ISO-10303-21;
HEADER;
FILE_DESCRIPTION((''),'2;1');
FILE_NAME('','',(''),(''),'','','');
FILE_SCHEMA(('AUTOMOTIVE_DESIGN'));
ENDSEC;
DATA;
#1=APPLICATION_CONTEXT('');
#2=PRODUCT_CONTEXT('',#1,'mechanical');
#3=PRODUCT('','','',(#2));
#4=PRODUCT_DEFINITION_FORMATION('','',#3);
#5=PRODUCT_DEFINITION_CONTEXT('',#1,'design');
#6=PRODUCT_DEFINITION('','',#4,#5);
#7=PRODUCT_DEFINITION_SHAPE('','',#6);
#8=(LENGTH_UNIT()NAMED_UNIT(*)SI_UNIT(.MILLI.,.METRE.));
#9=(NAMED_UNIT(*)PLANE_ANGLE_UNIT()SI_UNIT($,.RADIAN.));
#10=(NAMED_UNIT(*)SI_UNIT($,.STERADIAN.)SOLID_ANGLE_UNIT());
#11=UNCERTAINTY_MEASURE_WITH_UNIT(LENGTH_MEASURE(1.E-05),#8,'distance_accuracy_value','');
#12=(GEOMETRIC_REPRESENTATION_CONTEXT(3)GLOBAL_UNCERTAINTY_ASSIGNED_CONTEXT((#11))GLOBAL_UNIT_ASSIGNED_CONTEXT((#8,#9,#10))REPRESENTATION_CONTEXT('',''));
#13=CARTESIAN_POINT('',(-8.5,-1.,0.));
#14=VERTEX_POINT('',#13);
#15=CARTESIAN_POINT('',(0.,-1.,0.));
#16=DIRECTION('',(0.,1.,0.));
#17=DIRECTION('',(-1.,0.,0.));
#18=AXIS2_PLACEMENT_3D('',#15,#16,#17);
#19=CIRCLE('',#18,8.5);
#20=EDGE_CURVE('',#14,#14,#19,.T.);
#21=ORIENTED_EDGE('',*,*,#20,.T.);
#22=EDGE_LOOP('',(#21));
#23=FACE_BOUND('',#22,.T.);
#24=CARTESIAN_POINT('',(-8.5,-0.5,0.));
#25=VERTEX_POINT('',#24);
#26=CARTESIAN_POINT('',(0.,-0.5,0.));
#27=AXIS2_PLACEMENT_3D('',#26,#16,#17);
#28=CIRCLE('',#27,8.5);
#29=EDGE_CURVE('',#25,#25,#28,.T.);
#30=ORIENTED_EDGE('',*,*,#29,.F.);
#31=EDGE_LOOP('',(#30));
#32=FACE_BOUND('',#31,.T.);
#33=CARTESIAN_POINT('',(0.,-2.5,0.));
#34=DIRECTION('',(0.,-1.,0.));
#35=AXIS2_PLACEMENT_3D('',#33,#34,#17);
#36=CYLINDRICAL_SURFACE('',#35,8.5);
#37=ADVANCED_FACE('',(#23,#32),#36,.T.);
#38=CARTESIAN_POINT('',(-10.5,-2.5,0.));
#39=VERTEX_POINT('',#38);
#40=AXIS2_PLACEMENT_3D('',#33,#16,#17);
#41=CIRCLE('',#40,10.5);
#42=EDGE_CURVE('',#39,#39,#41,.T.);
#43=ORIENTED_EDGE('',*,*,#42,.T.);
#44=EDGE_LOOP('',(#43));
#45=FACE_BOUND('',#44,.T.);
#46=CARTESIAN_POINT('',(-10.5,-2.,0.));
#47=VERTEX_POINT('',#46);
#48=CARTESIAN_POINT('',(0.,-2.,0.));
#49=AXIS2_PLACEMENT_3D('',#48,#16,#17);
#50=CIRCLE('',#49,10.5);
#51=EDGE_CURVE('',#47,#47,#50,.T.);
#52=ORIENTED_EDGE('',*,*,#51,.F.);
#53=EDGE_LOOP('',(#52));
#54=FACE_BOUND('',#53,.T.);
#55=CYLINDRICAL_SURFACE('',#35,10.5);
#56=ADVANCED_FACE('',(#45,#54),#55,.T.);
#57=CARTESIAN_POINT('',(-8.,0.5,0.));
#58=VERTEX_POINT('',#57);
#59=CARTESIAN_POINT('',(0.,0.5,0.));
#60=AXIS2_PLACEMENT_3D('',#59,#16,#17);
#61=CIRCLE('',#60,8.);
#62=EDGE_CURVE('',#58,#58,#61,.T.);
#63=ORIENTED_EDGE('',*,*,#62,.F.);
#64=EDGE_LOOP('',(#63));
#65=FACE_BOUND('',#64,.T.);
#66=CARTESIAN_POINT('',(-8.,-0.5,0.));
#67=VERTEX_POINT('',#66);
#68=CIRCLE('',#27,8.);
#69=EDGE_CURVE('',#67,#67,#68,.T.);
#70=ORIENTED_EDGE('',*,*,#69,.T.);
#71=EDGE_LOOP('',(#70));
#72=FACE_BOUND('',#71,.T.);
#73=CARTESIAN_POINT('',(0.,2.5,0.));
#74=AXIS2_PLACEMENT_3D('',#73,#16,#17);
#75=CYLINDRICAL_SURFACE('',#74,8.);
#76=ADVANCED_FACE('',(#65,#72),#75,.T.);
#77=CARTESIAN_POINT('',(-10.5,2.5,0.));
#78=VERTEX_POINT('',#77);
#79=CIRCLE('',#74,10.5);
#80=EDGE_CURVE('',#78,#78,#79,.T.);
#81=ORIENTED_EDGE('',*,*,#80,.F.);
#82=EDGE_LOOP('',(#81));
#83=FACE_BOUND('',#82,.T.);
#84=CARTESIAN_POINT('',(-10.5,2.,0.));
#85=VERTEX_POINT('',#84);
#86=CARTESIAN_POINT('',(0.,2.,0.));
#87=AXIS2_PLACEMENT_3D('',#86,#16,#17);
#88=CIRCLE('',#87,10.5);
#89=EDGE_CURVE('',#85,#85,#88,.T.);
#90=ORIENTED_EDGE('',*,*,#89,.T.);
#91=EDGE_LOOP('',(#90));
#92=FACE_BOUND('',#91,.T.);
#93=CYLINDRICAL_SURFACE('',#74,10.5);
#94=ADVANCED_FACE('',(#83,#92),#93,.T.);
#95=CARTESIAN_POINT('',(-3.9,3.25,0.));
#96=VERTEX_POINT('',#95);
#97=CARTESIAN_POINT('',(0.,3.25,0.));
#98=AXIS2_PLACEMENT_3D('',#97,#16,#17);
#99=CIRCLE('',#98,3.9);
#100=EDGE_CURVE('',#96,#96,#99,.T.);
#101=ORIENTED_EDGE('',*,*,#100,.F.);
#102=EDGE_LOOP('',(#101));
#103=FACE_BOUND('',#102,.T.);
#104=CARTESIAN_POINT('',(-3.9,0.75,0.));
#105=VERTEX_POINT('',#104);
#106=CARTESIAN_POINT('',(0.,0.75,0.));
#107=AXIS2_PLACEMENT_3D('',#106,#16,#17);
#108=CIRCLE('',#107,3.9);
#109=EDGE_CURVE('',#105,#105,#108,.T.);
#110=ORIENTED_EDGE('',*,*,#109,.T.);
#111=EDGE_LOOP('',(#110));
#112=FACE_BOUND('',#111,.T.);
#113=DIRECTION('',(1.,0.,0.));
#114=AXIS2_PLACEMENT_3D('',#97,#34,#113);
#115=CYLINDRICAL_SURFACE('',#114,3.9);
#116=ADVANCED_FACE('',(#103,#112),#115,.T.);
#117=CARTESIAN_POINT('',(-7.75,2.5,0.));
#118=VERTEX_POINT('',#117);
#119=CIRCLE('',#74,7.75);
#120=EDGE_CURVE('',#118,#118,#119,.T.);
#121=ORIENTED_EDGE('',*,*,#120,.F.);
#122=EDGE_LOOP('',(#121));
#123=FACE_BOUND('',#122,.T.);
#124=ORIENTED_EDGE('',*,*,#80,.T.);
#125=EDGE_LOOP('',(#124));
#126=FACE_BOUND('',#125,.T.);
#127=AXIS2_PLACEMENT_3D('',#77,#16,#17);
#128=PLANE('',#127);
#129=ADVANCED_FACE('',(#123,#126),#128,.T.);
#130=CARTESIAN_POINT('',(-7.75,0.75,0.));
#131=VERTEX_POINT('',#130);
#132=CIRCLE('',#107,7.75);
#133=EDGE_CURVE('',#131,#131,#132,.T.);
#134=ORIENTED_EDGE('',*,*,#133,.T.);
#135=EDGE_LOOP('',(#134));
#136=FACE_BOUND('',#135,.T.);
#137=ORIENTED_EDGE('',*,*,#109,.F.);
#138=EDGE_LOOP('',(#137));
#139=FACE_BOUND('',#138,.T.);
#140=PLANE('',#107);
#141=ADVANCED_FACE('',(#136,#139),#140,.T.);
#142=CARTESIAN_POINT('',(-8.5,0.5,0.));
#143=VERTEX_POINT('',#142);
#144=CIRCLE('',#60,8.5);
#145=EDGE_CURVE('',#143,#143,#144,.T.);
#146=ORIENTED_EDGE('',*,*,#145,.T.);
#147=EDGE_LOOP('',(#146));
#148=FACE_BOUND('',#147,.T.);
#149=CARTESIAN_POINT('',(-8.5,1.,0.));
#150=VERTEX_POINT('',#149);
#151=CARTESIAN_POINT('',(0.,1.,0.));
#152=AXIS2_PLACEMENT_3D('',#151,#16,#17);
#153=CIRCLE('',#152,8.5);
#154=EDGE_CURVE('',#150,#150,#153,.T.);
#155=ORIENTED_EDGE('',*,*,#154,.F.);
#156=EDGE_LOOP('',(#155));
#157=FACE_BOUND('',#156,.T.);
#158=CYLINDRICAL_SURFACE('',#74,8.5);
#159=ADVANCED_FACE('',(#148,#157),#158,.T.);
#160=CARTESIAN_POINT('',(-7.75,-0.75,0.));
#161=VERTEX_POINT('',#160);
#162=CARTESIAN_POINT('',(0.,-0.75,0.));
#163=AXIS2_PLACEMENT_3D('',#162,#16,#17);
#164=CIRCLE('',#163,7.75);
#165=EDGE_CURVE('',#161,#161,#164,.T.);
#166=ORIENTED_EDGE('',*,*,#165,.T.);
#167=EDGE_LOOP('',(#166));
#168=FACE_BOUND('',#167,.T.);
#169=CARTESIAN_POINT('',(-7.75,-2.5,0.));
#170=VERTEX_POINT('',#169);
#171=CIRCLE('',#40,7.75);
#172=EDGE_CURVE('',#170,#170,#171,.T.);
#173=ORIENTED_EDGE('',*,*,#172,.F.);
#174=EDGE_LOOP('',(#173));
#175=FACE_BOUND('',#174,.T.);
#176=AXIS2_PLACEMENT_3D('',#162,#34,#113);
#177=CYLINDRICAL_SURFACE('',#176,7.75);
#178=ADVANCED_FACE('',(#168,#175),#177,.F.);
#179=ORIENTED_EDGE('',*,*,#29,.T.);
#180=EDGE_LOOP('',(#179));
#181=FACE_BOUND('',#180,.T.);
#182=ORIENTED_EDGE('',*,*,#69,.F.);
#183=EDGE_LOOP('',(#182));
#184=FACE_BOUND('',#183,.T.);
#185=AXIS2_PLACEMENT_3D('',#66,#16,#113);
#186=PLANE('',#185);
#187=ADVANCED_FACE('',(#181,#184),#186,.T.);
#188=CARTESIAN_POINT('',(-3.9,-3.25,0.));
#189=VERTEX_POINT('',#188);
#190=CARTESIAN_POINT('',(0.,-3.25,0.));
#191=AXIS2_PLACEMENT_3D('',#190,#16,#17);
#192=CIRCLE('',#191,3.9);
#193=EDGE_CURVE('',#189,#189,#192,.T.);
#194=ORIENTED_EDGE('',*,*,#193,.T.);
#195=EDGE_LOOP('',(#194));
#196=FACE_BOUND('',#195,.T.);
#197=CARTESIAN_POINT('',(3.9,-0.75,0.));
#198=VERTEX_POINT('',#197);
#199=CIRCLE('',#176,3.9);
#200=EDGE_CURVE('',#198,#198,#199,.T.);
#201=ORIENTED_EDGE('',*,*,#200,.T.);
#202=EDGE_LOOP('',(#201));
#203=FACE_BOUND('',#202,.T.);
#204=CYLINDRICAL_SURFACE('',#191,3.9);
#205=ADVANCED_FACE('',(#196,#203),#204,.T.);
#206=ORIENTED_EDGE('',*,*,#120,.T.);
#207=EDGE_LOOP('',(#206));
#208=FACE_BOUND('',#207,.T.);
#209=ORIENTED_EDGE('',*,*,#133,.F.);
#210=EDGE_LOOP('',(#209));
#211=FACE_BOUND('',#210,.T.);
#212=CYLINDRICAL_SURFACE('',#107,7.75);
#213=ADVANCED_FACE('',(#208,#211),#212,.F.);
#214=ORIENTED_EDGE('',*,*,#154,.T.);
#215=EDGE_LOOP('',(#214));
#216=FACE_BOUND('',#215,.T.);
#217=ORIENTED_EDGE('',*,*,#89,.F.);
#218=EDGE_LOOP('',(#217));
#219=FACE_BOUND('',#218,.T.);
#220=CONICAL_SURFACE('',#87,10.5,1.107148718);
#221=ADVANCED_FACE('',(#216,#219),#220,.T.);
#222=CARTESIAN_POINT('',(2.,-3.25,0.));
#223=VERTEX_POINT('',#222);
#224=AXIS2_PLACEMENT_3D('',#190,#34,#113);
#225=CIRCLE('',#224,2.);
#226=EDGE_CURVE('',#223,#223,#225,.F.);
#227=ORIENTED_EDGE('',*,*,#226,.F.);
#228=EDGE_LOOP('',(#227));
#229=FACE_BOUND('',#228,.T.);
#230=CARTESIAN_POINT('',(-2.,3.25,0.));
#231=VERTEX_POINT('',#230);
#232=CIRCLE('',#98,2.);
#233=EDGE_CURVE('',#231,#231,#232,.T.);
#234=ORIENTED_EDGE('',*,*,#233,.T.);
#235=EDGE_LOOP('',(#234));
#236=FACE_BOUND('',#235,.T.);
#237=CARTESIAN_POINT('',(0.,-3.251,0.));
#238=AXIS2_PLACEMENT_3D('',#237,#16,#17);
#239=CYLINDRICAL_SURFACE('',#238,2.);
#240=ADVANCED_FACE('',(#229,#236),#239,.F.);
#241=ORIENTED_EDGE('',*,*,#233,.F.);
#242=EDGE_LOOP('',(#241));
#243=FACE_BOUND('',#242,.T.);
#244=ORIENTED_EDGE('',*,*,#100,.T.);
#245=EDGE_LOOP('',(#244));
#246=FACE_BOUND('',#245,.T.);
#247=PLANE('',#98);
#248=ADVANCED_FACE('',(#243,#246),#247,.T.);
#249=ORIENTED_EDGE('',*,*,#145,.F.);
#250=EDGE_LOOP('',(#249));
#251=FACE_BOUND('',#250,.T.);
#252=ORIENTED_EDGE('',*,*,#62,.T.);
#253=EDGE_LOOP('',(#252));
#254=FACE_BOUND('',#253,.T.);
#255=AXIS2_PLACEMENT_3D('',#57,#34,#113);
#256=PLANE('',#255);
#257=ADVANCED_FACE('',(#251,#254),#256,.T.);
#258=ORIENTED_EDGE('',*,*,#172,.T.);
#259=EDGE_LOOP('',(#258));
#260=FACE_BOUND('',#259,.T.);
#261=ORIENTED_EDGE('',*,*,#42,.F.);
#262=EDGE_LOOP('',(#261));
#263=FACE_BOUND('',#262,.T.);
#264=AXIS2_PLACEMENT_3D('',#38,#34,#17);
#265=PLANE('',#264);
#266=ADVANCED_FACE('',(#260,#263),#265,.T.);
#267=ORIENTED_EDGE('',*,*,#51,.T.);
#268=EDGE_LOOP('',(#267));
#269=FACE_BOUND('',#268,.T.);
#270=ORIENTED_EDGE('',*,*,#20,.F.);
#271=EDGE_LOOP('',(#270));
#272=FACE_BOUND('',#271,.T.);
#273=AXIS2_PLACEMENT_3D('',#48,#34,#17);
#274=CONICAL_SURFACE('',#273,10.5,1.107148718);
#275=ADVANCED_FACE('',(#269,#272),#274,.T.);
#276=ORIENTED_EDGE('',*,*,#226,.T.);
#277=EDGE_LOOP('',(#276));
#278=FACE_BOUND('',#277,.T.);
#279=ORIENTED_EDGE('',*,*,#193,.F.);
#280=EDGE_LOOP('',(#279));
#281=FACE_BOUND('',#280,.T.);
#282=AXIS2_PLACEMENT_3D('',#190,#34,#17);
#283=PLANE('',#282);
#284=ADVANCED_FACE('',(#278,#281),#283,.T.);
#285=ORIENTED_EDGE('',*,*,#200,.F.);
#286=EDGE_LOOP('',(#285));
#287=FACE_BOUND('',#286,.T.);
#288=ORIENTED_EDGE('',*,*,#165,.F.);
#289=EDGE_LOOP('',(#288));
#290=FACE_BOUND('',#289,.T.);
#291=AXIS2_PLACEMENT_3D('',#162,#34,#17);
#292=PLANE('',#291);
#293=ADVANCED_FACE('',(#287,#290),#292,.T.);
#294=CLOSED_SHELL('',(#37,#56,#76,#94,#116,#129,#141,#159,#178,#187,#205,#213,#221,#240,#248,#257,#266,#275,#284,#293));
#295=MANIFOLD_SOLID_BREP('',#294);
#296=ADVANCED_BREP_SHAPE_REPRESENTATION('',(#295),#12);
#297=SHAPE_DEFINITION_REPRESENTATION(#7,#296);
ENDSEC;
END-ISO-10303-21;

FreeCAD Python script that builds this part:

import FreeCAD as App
import Part
import Sketcher

doc = App.newDocument("Part")
body = doc.addObject("PartDesign::Body", "Body")

# Sketch on XY plane
sketch1 = body.newObject("Sketcher::SketchObject", "Sketch")
sketch1.AttachmentSupport = (doc.getObject("XY_Plane"), [""])
sketch1.MapMode = "FlatFace"
sketch1.addGeometry([
    Part.LineSegment(App.Vector(-8, 0, 0), App.Vector(0, 0, 0)),  # 0
    Part.LineSegment(App.Vector(0, 0, 0), App.Vector(0, 2.5, 0)),  # 1
    Part.LineSegment(App.Vector(0, 2.5, 0), App.Vector(-10.5, 2.5, 0)),  # 2
    Part.LineSegment(App.Vector(-10.5, 2.5, 0), App.Vector(-10.5, 2, 0)),  # 3
    Part.LineSegment(App.Vector(-10.5, 2, 0), App.Vector(-8.5, 1, 0)),  # 4
    Part.LineSegment(App.Vector(-8.5, 1, 0), App.Vector(-8.5, 0.5, 0)),  # 5
    Part.LineSegment(App.Vector(-8.5, 0.5, 0), App.Vector(-8, 0.5, 0)),  # 6
    Part.LineSegment(App.Vector(-8, 0.5, 0), App.Vector(-8, 0, 0)),  # 7
], False)
sketch1.addConstraint([
    Sketcher.Constraint("Coincident", 0, 2, 1, 1),
    Sketcher.Constraint("Coincident", 1, 2, 2, 1),
    Sketcher.Constraint("Coincident", 2, 2, 3, 1),
    Sketcher.Constraint("Coincident", 3, 2, 4, 1),
    Sketcher.Constraint("Coincident", 4, 2, 5, 1),
    Sketcher.Constraint("Coincident", 5, 2, 6, 1),
    Sketcher.Constraint("Coincident", 6, 2, 7, 1),
    Sketcher.Constraint("Coincident", 7, 2, 0, 1),
    Sketcher.Constraint("Horizontal", 0),
    Sketcher.Constraint("Vertical", 1),
    Sketcher.Constraint("Horizontal", 2),
    Sketcher.Constraint("Vertical", 3),
    Sketcher.Constraint("Vertical", 5),
    Sketcher.Constraint("Horizontal", 6),
    Sketcher.Constraint("Vertical", 7),
    Sketcher.Constraint("Coincident", 0, 2, -1, 1),
    Sketcher.Constraint("Equal", 6, 3),
    Sketcher.Constraint("Equal", 3, 5),
    Sketcher.Constraint("Equal", 5, 7),
    Sketcher.Constraint("DistanceX", 0, 1, 0, 2, 8.0),
    Sketcher.Constraint("DistanceX", 2, 2, 2, 1, 10.5),
    Sketcher.Constraint("DistanceX", 6, 1, 6, 2, 0.5),
    Sketcher.Constraint("DistanceY", 1, 1, 1, 2, 2.5),
])
revolution = body.newObject("PartDesign::Revolution", "Revolution")
revolution.Profile = sketch1
revolution.ReferenceAxis = (sketch1, ["V_Axis"])
revolution.Angle = 360
doc.recompute()

mirrored = body.newObject("PartDesign::Mirrored", "Mirrored")
mirrored.Originals = [revolution]
mirrored.MirrorPlane = (doc.getObject("XZ_Plane"), [""])
body.Tip = mirrored

# Sketch on XZ plane
sketch2 = body.newObject("Sketcher::SketchObject", "Sketch001")
sketch2.AttachmentSupport = (doc.getObject("XZ_Plane"), [""])
sketch2.MapMode = "FlatFace"
sketch2.AttachmentOffset = App.Placement(App.Vector(0, 0, -2.5), App.Rotation())
sketch2.addGeometry(Part.Circle(App.Vector(0, 0, 0), App.Vector(0, 0, 1), 7.75), False)
sketch2.addConstraint([
    Sketcher.Constraint("Coincident", 0, 3, -1, 1),
    Sketcher.Constraint("Diameter", 0, 15.5),
])
pocket1 = body.newObject("PartDesign::Pocket", "Pocket")
pocket1.Profile = sketch2
pocket1.Length = 1.75
pocket1.Reversed = True

# Sketch on XZ plane
sketch3 = body.newObject("Sketcher::SketchObject", "Sketch002")
sketch3.AttachmentSupport = (doc.getObject("XZ_Plane"), [""])
sketch3.MapMode = "FlatFace"
sketch3.AttachmentOffset = App.Placement(App.Vector(0, 0, -0.75), App.Rotation())
sketch3.addGeometry(Part.Circle(App.Vector(0, 0, 0), App.Vector(0, 0, 1), 3.9), False)
sketch3.addConstraint([
    Sketcher.Constraint("Coincident", 0, 3, -1, 1),
    Sketcher.Constraint("Diameter", 0, 7.8),
])
pad1 = body.newObject("PartDesign::Pad", "Pad")
pad1.Profile = sketch3
pad1.Length = 2.5
pad1.Reversed = True
doc.recompute()

mirrored2 = body.newObject("PartDesign::Mirrored", "Mirrored001")
mirrored2.Originals = [pocket1, pad1]
mirrored2.MirrorPlane = (doc.getObject("XZ_Plane"), [""])
body.Tip = mirrored2

# Sketch on XZ plane
sketch4 = body.newObject("Sketcher::SketchObject", "Sketch003")
sketch4.AttachmentSupport = (doc.getObject("XZ_Plane"), [""])
sketch4.MapMode = "FlatFace"
sketch4.AttachmentOffset = App.Placement(App.Vector(0, 0, -3.25), App.Rotation())
sketch4.addGeometry(Part.Circle(App.Vector(0, 0, 0), App.Vector(0, 0, 1), 2), False)
sketch4.addConstraint([
    Sketcher.Constraint("Coincident", 0, 3, -1, 1),
    Sketcher.Constraint("Diameter", 0, 4.0),
])
pocket2 = body.newObject("PartDesign::Pocket", "Pocket001")
pocket2.Profile = sketch4
pocket2.Type = "UpToFirst"
pocket2.Reversed = True

doc.recompute()
